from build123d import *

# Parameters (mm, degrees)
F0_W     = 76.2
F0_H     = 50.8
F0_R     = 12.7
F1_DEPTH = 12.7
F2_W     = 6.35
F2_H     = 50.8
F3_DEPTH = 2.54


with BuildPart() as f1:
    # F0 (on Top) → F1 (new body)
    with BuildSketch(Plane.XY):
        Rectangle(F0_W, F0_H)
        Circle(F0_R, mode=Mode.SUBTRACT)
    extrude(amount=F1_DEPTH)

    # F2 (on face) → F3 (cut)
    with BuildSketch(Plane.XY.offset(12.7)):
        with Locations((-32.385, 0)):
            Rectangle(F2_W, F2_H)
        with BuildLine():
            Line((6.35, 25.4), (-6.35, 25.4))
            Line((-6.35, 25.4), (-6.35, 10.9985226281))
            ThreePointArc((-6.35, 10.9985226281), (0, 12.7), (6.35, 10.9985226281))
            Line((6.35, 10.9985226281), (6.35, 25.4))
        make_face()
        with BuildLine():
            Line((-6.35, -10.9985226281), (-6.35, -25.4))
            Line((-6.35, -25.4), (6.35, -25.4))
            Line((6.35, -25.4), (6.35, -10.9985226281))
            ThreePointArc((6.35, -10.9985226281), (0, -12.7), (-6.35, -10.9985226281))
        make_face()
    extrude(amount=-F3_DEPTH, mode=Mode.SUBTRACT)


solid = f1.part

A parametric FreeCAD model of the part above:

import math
import FreeCAD as App
import Part
import Sketcher
Q = App.Units.Quantity

doc = App.newDocument("Part")
body = doc.addObject("PartDesign::Body", "Body")

# Sketch on XY plane
sketch1 = doc.addObject("Sketcher::SketchObject", "Sketch")
body.addObject(sketch1)
sketch1.AttachmentSupport = (doc.XY_Plane, [""])
sketch1.MapMode = "FlatFace"
sketch1.addGeometry([
    Part.LineSegment(App.Vector(-38, 25, 0), App.Vector(-38, -25, 0)),  # 0
    Part.LineSegment(App.Vector(-38, -25, 0), App.Vector(38, -25, 0)),  # 1
    Part.LineSegment(App.Vector(38, -25, 0), App.Vector(38, 25, 0)),  # 2
    Part.LineSegment(App.Vector(38, 25, 0), App.Vector(-38, 25, 0)),  # 3
    Part.Circle(App.Vector(0, 0, 0), App.Vector(0, 0, 1), 13),  # 4
], False)
sketch1.addConstraint([
    Sketcher.Constraint("Coincident", 0, 2, 1, 1),
    Sketcher.Constraint("Coincident", 1, 2, 2, 1),
    Sketcher.Constraint("Coincident", 2, 2, 3, 1),
    Sketcher.Constraint("Coincident", 3, 2, 0, 1),
    Sketcher.Constraint("Vertical", 0),
    Sketcher.Constraint("Horizontal", 1),
    Sketcher.Constraint("Vertical", 2),
    Sketcher.Constraint("Horizontal", 3),
    Sketcher.Constraint("Coincident", 4, 3, -1, 1),
    Sketcher.Constraint("Symmetric", 0, 2, 2, 2, -1, 1),
    Sketcher.Constraint("Diameter", 4, Q("1 in")),
    Sketcher.Constraint("DistanceX", 1, 1, 1, 2, Q("3 in")),
    Sketcher.Constraint("DistanceY", 0, 2, 0, 1, Q("2 in")),
])
pad1 = doc.addObject("PartDesign::Pad", "Pad")
body.addObject(pad1)
pad1.Profile = sketch1
pad1.Length = Q("0.5 in")

# Sketch on XY plane
sketch2 = doc.addObject("Sketcher::SketchObject", "Sketch001")
body.addObject(sketch2)
sketch2.AttachmentSupport = (doc.XY_Plane, [""])
sketch2.MapMode = "FlatFace"
sketch2.AttachmentOffset = App.Placement(App.Vector(0, 0, 0.5 * 25.4), App.Rotation())
sketch2.addGeometry([
    Part.LineSegment(App.Vector(-36, 25, 0), App.Vector(-36, -25, 0)),  # 0
    Part.LineSegment(App.Vector(-36, -25, 0), App.Vector(-29, -25, 0)),  # 1
    Part.LineSegment(App.Vector(-29, -25, 0), App.Vector(-29, 25, 0)),  # 2
    Part.LineSegment(App.Vector(-29, 25, 0), App.Vector(-36, 25, 0)),  # 3
    Part.LineSegment(App.Vector(6, 25, 0), App.Vector(-6, 25, 0)),  # 4
    Part.LineSegment(App.Vector(-6, 25, 0), App.Vector(-6, 11, 0)),  # 5
    Part.ArcOfCircle(Part.Circle(App.Vector(0, 0, 0), App.Vector(0, 0, 1), 13), math.radians(60), math.radians(120)),  # 6
    Part.LineSegment(App.Vector(6, 11, 0), App.Vector(6, 25, 0)),  # 7
    Part.LineSegment(App.Vector(-6, -11, 0), App.Vector(-6, -25, 0)),  # 8
    Part.LineSegment(App.Vector(-6, -25, 0), App.Vector(6, -25, 0)),  # 9
    Part.LineSegment(App.Vector(6, -25, 0), App.Vector(6, -11, 0)),  # 10
    Part.ArcOfCircle(Part.Circle(App.Vector(0, 0, 0), App.Vector(0, 0, 1), 13), math.radians(-120), math.radians(-60)),  # 11
], False)
sketch2.addConstraint([
    Sketcher.Constraint("Coincident", 0, 2, 1, 1),
    Sketcher.Constraint("Coincident", 1, 2, 2, 1),
    Sketcher.Constraint("Coincident", 2, 2, 3, 1),
    Sketcher.Constraint("Coincident", 3, 2, 0, 1),
    Sketcher.Constraint("Coincident", 4, 2, 5, 1),
    Sketcher.Constraint("Coincident", 5, 2, 6, 2),
    Sketcher.Constraint("Coincident", 6, 1, 7, 1),
    Sketcher.Constraint("Coincident", 7, 2, 4, 1),
    Sketcher.Constraint("Coincident", 8, 2, 9, 1),
    Sketcher.Constraint("Coincident", 9, 2, 10, 1),
    Sketcher.Constraint("Coincident", 10, 2, 11, 2),
    Sketcher.Constraint("Coincident", 11, 1, 8, 1),
    Sketcher.Constraint("Vertical", 0),
    Sketcher.Constraint("Horizontal", 1),
    Sketcher.Constraint("Vertical", 2),
    Sketcher.Constraint("Horizontal", 3),
    Sketcher.Constraint("Horizontal", 4),
    Sketcher.Constraint("Vertical", 5),
    Sketcher.Constraint("Vertical", 7),
    Sketcher.Constraint("Vertical", 8),
    Sketcher.Constraint("Horizontal", 9),
    Sketcher.Constraint("Vertical", 10),
    Sketcher.Constraint("Coincident", 6, 3, -1, 1),
    Sketcher.Constraint("Coincident", 11, 3, -1, 1),
    Sketcher.Constraint("Equal", 6, 11),
    Sketcher.Constraint("Symmetric", 7, 2, 8, 2, -1, 1),
    Sketcher.Constraint("Horizontal", 3, 2, 4, 2),
    Sketcher.Constraint("Horizontal", 5, 2, 6, 1),
    Sketcher.Constraint("Horizontal", 1, 2, 8, 2),
    Sketcher.Constraint("Horizontal", 10, 2, 11, 1),
    Sketcher.Constraint("Radius", 6, Q("0.5 in")),
    Sketcher.Constraint("DistanceY", 0, 2, 0, 1, Q("2 in")),
    Sketcher.Constraint("DistanceX", 4, 2, 4, 1, Q("0.5 in")),
    Sketcher.Constraint("DistanceX", 1, 1, 1, 2, Q("0.25 in")),
    Sketcher.Constraint("DistanceX", 0, 2, -1, 1, Q("1.4 in")),
])
pocket1 = doc.addObject("PartDesign::Pocket", "Pocket")
body.addObject(pocket1)
pocket1.Profile = sketch2
pocket1.Length = Q("0.1 in")

doc.recompute()
